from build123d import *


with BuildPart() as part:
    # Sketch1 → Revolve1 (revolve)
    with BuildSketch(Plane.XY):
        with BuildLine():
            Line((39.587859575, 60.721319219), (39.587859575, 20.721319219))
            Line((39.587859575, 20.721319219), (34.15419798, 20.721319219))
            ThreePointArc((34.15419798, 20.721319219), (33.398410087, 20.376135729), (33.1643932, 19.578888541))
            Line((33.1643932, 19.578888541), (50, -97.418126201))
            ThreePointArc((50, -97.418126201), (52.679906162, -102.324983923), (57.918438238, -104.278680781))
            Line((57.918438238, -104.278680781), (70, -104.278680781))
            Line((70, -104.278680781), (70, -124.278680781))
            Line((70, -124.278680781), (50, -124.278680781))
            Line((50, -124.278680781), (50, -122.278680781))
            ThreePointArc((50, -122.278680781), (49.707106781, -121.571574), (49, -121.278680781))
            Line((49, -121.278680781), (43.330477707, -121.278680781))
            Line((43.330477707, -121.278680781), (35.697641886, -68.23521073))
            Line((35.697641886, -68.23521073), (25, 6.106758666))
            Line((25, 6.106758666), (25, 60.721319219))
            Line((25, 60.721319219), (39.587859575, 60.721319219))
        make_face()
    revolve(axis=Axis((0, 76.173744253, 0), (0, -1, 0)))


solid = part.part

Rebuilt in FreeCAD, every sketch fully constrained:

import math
import FreeCAD as App
import Part
import Sketcher
from FreeCAD import Vector

doc = App.newDocument("Part")
body = doc.addObject("PartDesign::Body", "Body")

# Sketch on XY plane
sketch1 = body.newObject("Sketcher::SketchObject", "Sketch")
sketch1.AttachmentSupport = (doc.getObject("XY_Plane"), [""])
sketch1.MapMode = "FlatFace"
sketch1.addGeometry([
    Part.LineSegment(Vector(39.58786, 20.721319, 0), Vector(39.58786, 60.721319, 0)),  # 0
    Part.LineSegment(Vector(39.58786, 60.721319, 0), Vector(25, 60.721319, 0)),  # 1
    Part.LineSegment(Vector(25, 60.721319, 0), Vector(25, 6.106759, 0)),  # 2
    Part.LineSegment(Vector(25, 6.106759, 0), Vector(35.697642, -68.235211, 0)),  # 3
    Part.LineSegment(Vector(35.697642, -68.235211, 0), Vector(43.330478, -121.278681, 0)),  # 4
    Part.LineSegment(Vector(43.330478, -121.278681, 0), Vector(49, -121.278681, 0)),  # 5
    Part.ArcOfCircle(Part.Circle(Vector(49, -122.278681, 0), Vector(0, 0, 1), 1), math.radians(0), math.radians(90)),  # 6
    Part.LineSegment(Vector(50, -122.278681, 0), Vector(50, -124.278681, 0)),  # 7
    Part.LineSegment(Vector(50, -124.278681, 0), Vector(70, -124.278681, 0)),  # 8
    Part.LineSegment(Vector(70, -124.278681, 0), Vector(70, -104.278681, 0)),  # 9
    Part.LineSegment(Vector(70, -104.278681, 0), Vector(57.918438, -104.278681, 0)),  # 10
    Part.ArcOfCircle(Part.Circle(Vector(57.918438, -96.278681, 0), Vector(0, 0, 1), 8), math.radians(-171.811476), math.radians(-90)),  # 11
    Part.LineSegment(Vector(50, -97.418126, 0), Vector(33.164393, 19.578889, 0)),  # 12
    Part.ArcOfCircle(Part.Circle(Vector(34.154198, 19.721319, 0), Vector(0, 0, 1), 1), math.radians(90), math.radians(188.188524)),  # 13
    Part.LineSegment(Vector(34.154198, 20.721319, 0), Vector(39.58786, 20.721319, 0)),  # 14
], False)
sketch1.addConstraint([
    Sketcher.Constraint("Coincident", 0, 2, 1, 1),
    Sketcher.Constraint("Coincident", 1, 2, 2, 1),
    Sketcher.Constraint("Coincident", 2, 2, 3, 1),
    Sketcher.Constraint("Coincident", 3, 2, 4, 1),
    Sketcher.Constraint("Coincident", 4, 2, 5, 1),
    Sketcher.Constraint("Coincident", 5, 2, 6, 2),
    Sketcher.Constraint("Coincident", 6, 1, 7, 1),
    Sketcher.Constraint("Coincident", 7, 2, 8, 1),
    Sketcher.Constraint("Coincident", 8, 2, 9, 1),
    Sketcher.Constraint("Coincident", 9, 2, 10, 1),
    Sketcher.Constraint("Coincident", 10, 2, 11, 2),
    Sketcher.Constraint("Coincident", 11, 1, 12, 1),
    Sketcher.Constraint("Coincident", 12, 2, 13, 2),
    Sketcher.Constraint("Coincident", 13, 1, 14, 1),
    Sketcher.Constraint("Coincident", 14, 2, 0, 1),
    Sketcher.Constraint("Vertical", 0),
    Sketcher.Constraint("Horizontal", 1),
    Sketcher.Constraint("Vertical", 2),
    Sketcher.Constraint("Horizontal", 5),
    Sketcher.Constraint("Vertical", 7),
    Sketcher.Constraint("Horizontal", 8),
    Sketcher.Constraint("Vertical", 9),
    Sketcher.Constraint("Horizontal", 10),
    Sketcher.Constraint("Horizontal", 14),
    Sketcher.Constraint("Radius", 6, 1.0),
    Sketcher.Constraint("Radius", 11, 8.0),
    Sketcher.Constraint("Radius", 13, 1.0),
    Sketcher.Constraint("DistanceX", 8, 1, 8, 2, 20.0),
    Sketcher.Constraint("DistanceY", 0, 1, 0, 2, 40.0),
    Sketcher.Constraint("DistanceY", 7, 2, 7, 1, 2.0),
    Sketcher.Constraint("DistanceY", 9, 1, 9, 2, 20.0),
    Sketcher.Constraint("DistanceX", -1, 1, 6, 3, 49.0),
    Sketcher.Constraint("DistanceX", -1, 1, 1, 2, 25.0),
    Sketcher.Constraint("DistanceX", -1, 1, 5, 2, 49.0),
    Sketcher.Constraint("DistanceX", -1, 1, 11, 1, 50.0),
    Sketcher.Constraint("DistanceY", 6, 3, 11, 3, 26.0),
    Sketcher.Constraint("DistanceY", 11, 3, 13, 3, 116.0),
    Sketcher.Constraint("DistanceX", 1, 2, 1, 1, 14.58786),
    Sketcher.Constraint("DistanceX", 10, 2, 10, 1, 12.081562),
    Sketcher.Constraint("DistanceX", 14, 1, 14, 2, 5.433662),
    Sketcher.Constraint("DistanceY", 2, 2, 2, 1, 54.614561),
    Sketcher.Constraint("DistanceY", 3, 2, 12, 2, 87.814099),
    Sketcher.Constraint("Distance", 3, 75.107709),
    Sketcher.Constraint("Distance", 4, 53.58983),
    Sketcher.Constraint("Distance", 12, 118.202111),
    Sketcher.Constraint("DistanceY", 6, 3, -1, 1, 122.278681),
    Sketcher.Constraint("DistanceX", -1, 1, 11, 3, 57.918438),
    Sketcher.Constraint("DistanceX", -1, 1, 3, 2, 35.697642),
])
revolution = body.newObject("PartDesign::Revolution", "Revolution")
revolution.Profile = sketch1
revolution.ReferenceAxis = (sketch1, ["V_Axis"])
revolution.Angle = 360

doc.recompute()
